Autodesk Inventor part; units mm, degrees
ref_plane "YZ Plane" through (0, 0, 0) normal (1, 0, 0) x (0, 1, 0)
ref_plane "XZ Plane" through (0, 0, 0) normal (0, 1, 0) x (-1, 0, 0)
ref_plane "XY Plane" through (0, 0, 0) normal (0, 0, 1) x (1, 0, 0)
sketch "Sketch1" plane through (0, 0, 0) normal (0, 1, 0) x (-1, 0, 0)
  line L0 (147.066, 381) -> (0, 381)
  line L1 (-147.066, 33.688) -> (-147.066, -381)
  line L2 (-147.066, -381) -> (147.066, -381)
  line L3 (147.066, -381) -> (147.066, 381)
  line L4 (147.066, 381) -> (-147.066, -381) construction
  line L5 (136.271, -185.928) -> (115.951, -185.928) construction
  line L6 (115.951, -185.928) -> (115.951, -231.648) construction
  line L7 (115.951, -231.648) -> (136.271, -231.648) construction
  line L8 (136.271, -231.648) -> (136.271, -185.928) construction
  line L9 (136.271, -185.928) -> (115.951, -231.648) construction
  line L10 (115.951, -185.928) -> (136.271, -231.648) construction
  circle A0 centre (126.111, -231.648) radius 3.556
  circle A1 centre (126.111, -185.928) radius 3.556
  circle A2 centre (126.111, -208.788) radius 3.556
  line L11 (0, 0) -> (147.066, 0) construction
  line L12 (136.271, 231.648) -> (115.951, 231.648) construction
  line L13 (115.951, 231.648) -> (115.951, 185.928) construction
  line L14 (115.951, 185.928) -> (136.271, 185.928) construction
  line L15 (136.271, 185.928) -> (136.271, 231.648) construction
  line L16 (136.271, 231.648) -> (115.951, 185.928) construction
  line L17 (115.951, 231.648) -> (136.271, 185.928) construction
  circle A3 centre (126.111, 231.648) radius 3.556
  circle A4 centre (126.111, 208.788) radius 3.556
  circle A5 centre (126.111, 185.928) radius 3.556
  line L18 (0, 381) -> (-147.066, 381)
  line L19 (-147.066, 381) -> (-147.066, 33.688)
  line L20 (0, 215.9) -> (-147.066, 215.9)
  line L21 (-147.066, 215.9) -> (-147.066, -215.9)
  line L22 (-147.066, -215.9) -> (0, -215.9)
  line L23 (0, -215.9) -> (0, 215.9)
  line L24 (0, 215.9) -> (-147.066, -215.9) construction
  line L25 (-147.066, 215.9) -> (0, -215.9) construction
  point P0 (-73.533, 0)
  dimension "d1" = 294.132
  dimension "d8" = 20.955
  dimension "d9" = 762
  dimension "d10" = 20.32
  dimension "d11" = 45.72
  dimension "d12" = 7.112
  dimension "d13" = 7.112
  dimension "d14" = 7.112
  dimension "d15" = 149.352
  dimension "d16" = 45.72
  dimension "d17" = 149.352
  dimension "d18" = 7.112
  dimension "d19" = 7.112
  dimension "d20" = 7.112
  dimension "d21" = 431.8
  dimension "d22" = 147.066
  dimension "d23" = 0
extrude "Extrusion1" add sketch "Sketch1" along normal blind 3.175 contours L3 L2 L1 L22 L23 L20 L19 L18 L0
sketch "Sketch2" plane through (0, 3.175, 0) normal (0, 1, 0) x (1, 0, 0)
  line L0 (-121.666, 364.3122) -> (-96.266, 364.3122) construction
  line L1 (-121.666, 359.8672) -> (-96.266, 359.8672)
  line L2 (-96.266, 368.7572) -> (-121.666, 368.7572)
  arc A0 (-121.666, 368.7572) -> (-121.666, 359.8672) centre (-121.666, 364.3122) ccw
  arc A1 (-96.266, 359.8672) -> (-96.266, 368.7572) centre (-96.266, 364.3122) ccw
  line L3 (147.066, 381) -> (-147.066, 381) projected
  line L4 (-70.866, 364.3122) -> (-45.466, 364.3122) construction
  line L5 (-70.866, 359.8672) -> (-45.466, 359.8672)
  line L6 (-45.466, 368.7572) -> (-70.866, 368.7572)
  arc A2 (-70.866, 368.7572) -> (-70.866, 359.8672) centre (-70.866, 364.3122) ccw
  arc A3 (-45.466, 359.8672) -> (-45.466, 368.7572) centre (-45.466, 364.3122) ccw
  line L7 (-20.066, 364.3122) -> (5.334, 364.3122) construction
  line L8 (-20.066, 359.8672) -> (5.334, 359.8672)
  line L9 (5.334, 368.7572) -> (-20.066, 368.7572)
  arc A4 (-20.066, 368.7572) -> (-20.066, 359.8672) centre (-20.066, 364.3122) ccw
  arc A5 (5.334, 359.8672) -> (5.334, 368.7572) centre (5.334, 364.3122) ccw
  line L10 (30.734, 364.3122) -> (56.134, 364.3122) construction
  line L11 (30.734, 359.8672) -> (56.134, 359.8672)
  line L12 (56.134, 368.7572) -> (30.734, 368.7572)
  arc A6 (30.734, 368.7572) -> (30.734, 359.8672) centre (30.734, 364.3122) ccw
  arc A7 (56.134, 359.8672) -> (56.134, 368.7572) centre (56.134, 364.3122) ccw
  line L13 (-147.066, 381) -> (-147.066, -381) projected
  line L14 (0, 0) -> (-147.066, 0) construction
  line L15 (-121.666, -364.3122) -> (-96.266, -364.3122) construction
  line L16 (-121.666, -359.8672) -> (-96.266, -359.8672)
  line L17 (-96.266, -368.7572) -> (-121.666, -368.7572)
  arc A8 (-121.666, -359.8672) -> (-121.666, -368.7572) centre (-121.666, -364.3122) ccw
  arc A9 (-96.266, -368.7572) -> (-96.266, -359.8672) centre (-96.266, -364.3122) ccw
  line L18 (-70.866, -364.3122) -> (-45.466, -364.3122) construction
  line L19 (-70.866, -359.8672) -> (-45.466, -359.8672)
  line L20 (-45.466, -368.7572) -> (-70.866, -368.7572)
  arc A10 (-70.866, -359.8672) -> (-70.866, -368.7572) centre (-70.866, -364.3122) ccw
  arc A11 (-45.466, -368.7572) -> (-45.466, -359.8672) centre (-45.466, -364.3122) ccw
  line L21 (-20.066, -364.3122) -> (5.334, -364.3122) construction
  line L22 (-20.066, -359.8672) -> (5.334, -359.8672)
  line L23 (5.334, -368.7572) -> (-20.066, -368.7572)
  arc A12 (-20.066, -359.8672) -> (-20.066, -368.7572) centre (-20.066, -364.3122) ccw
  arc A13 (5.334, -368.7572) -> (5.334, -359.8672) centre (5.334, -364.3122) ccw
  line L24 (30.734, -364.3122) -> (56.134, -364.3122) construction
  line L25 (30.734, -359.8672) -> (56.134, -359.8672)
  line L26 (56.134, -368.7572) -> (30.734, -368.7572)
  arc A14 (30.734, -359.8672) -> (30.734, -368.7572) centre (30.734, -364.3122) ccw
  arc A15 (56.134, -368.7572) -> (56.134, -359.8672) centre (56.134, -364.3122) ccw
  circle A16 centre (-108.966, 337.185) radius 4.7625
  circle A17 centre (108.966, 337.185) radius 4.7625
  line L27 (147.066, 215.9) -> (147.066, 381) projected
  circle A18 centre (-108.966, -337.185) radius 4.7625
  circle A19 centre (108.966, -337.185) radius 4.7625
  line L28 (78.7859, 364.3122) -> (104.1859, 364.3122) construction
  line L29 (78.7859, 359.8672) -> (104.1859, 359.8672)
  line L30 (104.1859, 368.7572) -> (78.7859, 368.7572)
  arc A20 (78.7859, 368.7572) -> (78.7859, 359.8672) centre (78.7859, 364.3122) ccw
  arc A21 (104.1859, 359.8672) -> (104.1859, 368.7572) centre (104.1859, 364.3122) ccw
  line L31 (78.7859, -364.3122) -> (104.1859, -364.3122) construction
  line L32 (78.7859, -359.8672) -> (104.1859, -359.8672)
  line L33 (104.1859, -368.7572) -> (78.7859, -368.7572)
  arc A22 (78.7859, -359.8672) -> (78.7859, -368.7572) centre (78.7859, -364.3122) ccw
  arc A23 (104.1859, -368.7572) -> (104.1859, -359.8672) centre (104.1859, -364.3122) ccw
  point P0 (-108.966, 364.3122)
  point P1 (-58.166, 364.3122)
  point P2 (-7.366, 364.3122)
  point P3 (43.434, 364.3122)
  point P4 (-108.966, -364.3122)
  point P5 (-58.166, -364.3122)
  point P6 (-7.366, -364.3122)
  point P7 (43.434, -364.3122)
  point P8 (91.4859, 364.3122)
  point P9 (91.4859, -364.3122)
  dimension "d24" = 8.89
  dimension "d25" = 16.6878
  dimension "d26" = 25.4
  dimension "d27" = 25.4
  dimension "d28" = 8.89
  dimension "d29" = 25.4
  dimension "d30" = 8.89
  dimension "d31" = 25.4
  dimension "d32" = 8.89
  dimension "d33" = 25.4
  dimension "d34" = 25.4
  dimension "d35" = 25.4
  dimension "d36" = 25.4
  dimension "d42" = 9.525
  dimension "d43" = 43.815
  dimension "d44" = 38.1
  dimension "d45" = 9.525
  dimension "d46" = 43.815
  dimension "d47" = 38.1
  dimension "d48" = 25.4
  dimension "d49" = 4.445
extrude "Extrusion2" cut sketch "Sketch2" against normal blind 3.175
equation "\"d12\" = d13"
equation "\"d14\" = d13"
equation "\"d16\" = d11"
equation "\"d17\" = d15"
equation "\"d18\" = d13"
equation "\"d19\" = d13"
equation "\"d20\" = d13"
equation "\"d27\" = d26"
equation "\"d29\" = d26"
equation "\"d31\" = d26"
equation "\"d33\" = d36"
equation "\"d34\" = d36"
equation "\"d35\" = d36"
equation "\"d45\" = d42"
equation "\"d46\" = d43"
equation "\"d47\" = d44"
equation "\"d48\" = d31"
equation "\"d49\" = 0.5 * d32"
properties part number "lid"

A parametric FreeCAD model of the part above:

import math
import FreeCAD as App
import Part
import Sketcher

V = App.Vector
Q = App.Units.Quantity


def add_polygon(sketch, points):
    """Adds a closed chain of lines whose ends are joined by coincident constraints."""
    first, n = sketch.GeometryCount, len(points)
    for a, b in zip(points, points[1:] + points[:1]):
        sketch.addGeometry(Part.LineSegment(App.Vector(*a, 0), App.Vector(*b, 0)), False)
    for i in range(n):
        sketch.addConstraint(Sketcher.Constraint("Coincident", first + i, 2, first + (i + 1) % n, 1))

doc = App.newDocument("Part")
body = doc.addObject("PartDesign::Body", "Body")

sketch1 = body.newObject("Sketcher::SketchObject", "Sketch")
sketch1.AttachmentSupport = (doc.getObject("XZ_Plane"), [""])
sketch1.MapMode = "FlatFace"
add_polygon(sketch1, [(-147.066, -381), (-147.066, 381), (147.066, 381), (147.066, 215.9), (0, 215.9), (0, -215.9), (147.066, -215.9), (147.066, -381)])
sketch1.addGeometry(Part.Circle(V(-126.111, -231.648, 0), V(0, 0, 1), 3.556), False)
sketch1.addGeometry(Part.Circle(V(-126.111, -208.788, 0), V(0, 0, 1), 3.556), False)
sketch1.addGeometry(Part.Circle(V(-126.111, -185.928, 0), V(0, 0, 1), 3.556), False)
sketch1.addGeometry(Part.Circle(V(-126.111, 185.928, 0), V(0, 0, 1), 3.556), False)
sketch1.addGeometry(Part.Circle(V(-126.111, 208.788, 0), V(0, 0, 1), 3.556), False)
sketch1.addGeometry(Part.Circle(V(-126.111, 231.648, 0), V(0, 0, 1), 3.556), False)
sketch1.addConstraint(Sketcher.Constraint("Vertical", 0))
sketch1.addConstraint(Sketcher.Constraint("Horizontal", 1))
sketch1.addConstraint(Sketcher.Constraint("Vertical", 2))
sketch1.addConstraint(Sketcher.Constraint("Horizontal", 3))
sketch1.addConstraint(Sketcher.Constraint("Vertical", 4))
sketch1.addConstraint(Sketcher.Constraint("Horizontal", 5))
sketch1.addConstraint(Sketcher.Constraint("Vertical", 6))
sketch1.addConstraint(Sketcher.Constraint("Horizontal", 7))
sketch1.addConstraint(Sketcher.Constraint("Equal", 8, 9))
sketch1.addConstraint(Sketcher.Constraint("Equal", 9, 10))
sketch1.addConstraint(Sketcher.Constraint("Equal", 10, 11))
sketch1.addConstraint(Sketcher.Constraint("Equal", 11, 12))
sketch1.addConstraint(Sketcher.Constraint("Equal", 12, 13))
sketch1.addConstraint(Sketcher.Constraint("Symmetric", 3, 2, 4, 2, -1, 1))
sketch1.addConstraint(Sketcher.Constraint("Symmetric", 0, 2, 6, 2, -1, 1))
sketch1.addConstraint(Sketcher.Constraint("Symmetric", 10, 3, 11, 3, -1))
sketch1.addConstraint(Sketcher.Constraint("Symmetric", 9, 3, 12, 3, -1))
sketch1.addConstraint(Sketcher.Constraint("Symmetric", 8, 3, 13, 3, -1))
sketch1.addConstraint(Sketcher.Constraint("Vertical", 8, 3, 9, 3))
sketch1.addConstraint(Sketcher.Constraint("Vertical", 9, 3, 10, 3))
sketch1.addConstraint(Sketcher.Constraint("Vertical", 2, 2, 5, 2))
sketch1.addConstraint(Sketcher.Constraint("Diameter", 8, Q("0.28 in")))
sketch1.addConstraint(Sketcher.Constraint("DistanceY", 0, 1, 0, 2, Q("30 in")))
sketch1.addConstraint(Sketcher.Constraint("DistanceY", 4, 2, 4, 1, Q("17 in")))
sketch1.addConstraint(Sketcher.Constraint("DistanceX", 1, 1, 1, 2, Q("11.58 in")))
sketch1.addConstraint(Sketcher.Constraint("DistanceY", 8, 3, 10, 3, Q("1.8 in")))
sketch1.addConstraint(Sketcher.Constraint("DistanceY", 13, 3, 0, 2, Q("5.88 in")))
sketch1.addConstraint(Sketcher.Constraint("DistanceY", 12, 3, 2, 2, Q("0.28 in")))
sketch1.addConstraint(Sketcher.Constraint("DistanceX", 0, 2, 13, 3, Q("0.825 in")))
pad1 = body.newObject("PartDesign::Pad", "Pad")
pad1.Profile = sketch1
pad1.Length = Q("0.125 in")
pad1.Reversed = True

sketch2 = body.newObject("Sketcher::SketchObject", "Sketch001")
sketch2.AttachmentSupport = (doc.getObject("XZ_Plane"), [""])
sketch2.MapMode = "FlatFace"
sketch2.AttachmentOffset = App.Placement(V(0, 0, -0.125 * 25.4), App.Rotation())
sketch2.addGeometry(Part.ArcOfCircle(Part.Circle(V(-121.666, -364.3122, 0), V(0, 0, 1), 4.445), math.radians(90), math.radians(270)), False)
sketch2.addGeometry(Part.LineSegment(V(-121.666, -359.8672, 0), V(-96.266, -359.8672, 0)), False)
sketch2.addGeometry(Part.ArcOfCircle(Part.Circle(V(-96.266, -364.3122, 0), V(0, 0, 1), 4.445), math.radians(-90), math.radians(90)), False)
sketch2.addGeometry(Part.LineSegment(V(-96.266, -368.7572, 0), V(-121.666, -368.7572, 0)), False)
sketch2.addGeometry(Part.ArcOfCircle(Part.Circle(V(-70.866, -364.3122, 0), V(0, 0, 1), 4.445), math.radians(90), math.radians(270)), False)
sketch2.addGeometry(Part.LineSegment(V(-70.866, -359.8672, 0), V(-45.466, -359.8672, 0)), False)
sketch2.addGeometry(Part.ArcOfCircle(Part.Circle(V(-45.466, -364.3122, 0), V(0, 0, 1), 4.445), math.radians(-90), math.radians(90)), False)
sketch2.addGeometry(Part.LineSegment(V(-45.466, -368.7572, 0), V(-70.866, -368.7572, 0)), False)
sketch2.addGeometry(Part.ArcOfCircle(Part.Circle(V(-20.066, -364.3122, 0), V(0, 0, 1), 4.445), math.radians(90), math.radians(270)), False)
sketch2.addGeometry(Part.LineSegment(V(-20.066, -359.8672, 0), V(5.334, -359.8672, 0)), False)
sketch2.addGeometry(Part.ArcOfCircle(Part.Circle(V(5.334, -364.3122, 0), V(0, 0, 1), 4.445), math.radians(-90), math.radians(90)), False)
sketch2.addGeometry(Part.LineSegment(V(5.334, -368.7572, 0), V(-20.066, -368.7572, 0)), False)
sketch2.addGeometry(Part.ArcOfCircle(Part.Circle(V(30.734, -364.3122, 0), V(0, 0, 1), 4.445), math.radians(90), math.radians(270)), False)
sketch2.addGeometry(Part.LineSegment(V(30.734, -359.8672, 0), V(56.134, -359.8672, 0)), False)
sketch2.addGeometry(Part.ArcOfCircle(Part.Circle(V(56.134, -364.3122, 0), V(0, 0, 1), 4.445), math.radians(-90), math.radians(90)), False)
sketch2.addGeometry(Part.LineSegment(V(56.134, -368.7572, 0), V(30.734, -368.7572, 0)), False)
sketch2.addGeometry(Part.LineSegment(V(-96.266, 359.8672, 0), V(-121.666, 359.8672, 0)), False)
sketch2.addGeometry(Part.ArcOfCircle(Part.Circle(V(-121.666, 364.3122, 0), V(0, 0, 1), 4.445), math.radians(90), math.radians(270)), False)
sketch2.addGeometry(Part.LineSegment(V(-121.666, 368.7572, 0), V(-96.266, 368.7572, 0)), False)
sketch2.addGeometry(Part.ArcOfCircle(Part.Circle(V(-96.266, 364.3122, 0), V(0, 0, 1), 4.445), math.radians(-90), math.radians(90)), False)
sketch2.addGeometry(Part.LineSegment(V(-45.466, 359.8672, 0), V(-70.866, 359.8672, 0)), False)
sketch2.addGeometry(Part.ArcOfCircle(Part.Circle(V(-70.866, 364.3122, 0), V(0, 0, 1), 4.445), math.radians(90), math.radians(270)), False)
sketch2.addGeometry(Part.LineSegment(V(-70.866, 368.7572, 0), V(-45.466, 368.7572, 0)), False)
sketch2.addGeometry(Part.ArcOfCircle(Part.Circle(V(-45.466, 364.3122, 0), V(0, 0, 1), 4.445), math.radians(-90), math.radians(90)), False)
sketch2.addGeometry(Part.LineSegment(V(5.334, 359.8672, 0), V(-20.066, 359.8672, 0)), False)
sketch2.addGeometry(Part.ArcOfCircle(Part.Circle(V(-20.066, 364.3122, 0), V(0, 0, 1), 4.445), math.radians(90), math.radians(270)), False)
sketch2.addGeometry(Part.LineSegment(V(-20.066, 368.7572, 0), V(5.334, 368.7572, 0)), False)
sketch2.addGeometry(Part.ArcOfCircle(Part.Circle(V(5.334, 364.3122, 0), V(0, 0, 1), 4.445), math.radians(-90), math.radians(90)), False)
sketch2.addGeometry(Part.LineSegment(V(56.134, 359.8672, 0), V(30.734, 359.8672, 0)), False)
sketch2.addGeometry(Part.ArcOfCircle(Part.Circle(V(30.734, 364.3122, 0), V(0, 0, 1), 4.445), math.radians(90), math.radians(270)), False)
sketch2.addGeometry(Part.LineSegment(V(30.734, 368.7572, 0), V(56.134, 368.7572, 0)), False)
sketch2.addGeometry(Part.ArcOfCircle(Part.Circle(V(56.134, 364.3122, 0), V(0, 0, 1), 4.445), math.radians(-90), math.radians(90)), False)
sketch2.addGeometry(Part.Circle(V(-108.966, -337.185, 0), V(0, 0, 1), 4.7625), False)
sketch2.addGeometry(Part.Circle(V(108.966, -337.185, 0), V(0, 0, 1), 4.7625), False)
sketch2.addGeometry(Part.Circle(V(-108.966, 337.185, 0), V(0, 0, 1), 4.7625), False)
sketch2.addGeometry(Part.Circle(V(108.966, 337.185, 0), V(0, 0, 1), 4.7625), False)
sketch2.addGeometry(Part.ArcOfCircle(Part.Circle(V(78.7859, -364.3122, 0), V(0, 0, 1), 4.445), math.radians(90), math.radians(270)), False)
sketch2.addGeometry(Part.LineSegment(V(78.7859, -359.8672, 0), V(104.1859, -359.8672, 0)), False)
sketch2.addGeometry(Part.ArcOfCircle(Part.Circle(V(104.1859, -364.3122, 0), V(0, 0, 1), 4.445), math.radians(-90), math.radians(90)), False)
sketch2.addGeometry(Part.LineSegment(V(104.1859, -368.7572, 0), V(78.7859, -368.7572, 0)), False)
sketch2.addGeometry(Part.LineSegment(V(104.1859, 359.8672, 0), V(78.7859, 359.8672, 0)), False)
sketch2.addGeometry(Part.ArcOfCircle(Part.Circle(V(78.7859, 364.3122, 0), V(0, 0, 1), 4.445), math.radians(90), math.radians(270)), False)
sketch2.addGeometry(Part.LineSegment(V(78.7859, 368.7572, 0), V(104.1859, 368.7572, 0)), False)
sketch2.addGeometry(Part.ArcOfCircle(Part.Circle(V(104.1859, 364.3122, 0), V(0, 0, 1), 4.445), math.radians(-90), math.radians(90)), False)
sketch2.addConstraint(Sketcher.Constraint("Tangent", 0, 1, 1, 1))
sketch2.addConstraint(Sketcher.Constraint("Tangent", 1, 2, 2, 2))
sketch2.addConstraint(Sketcher.Constraint("Tangent", 2, 1, 3, 1))
sketch2.addConstraint(Sketcher.Constraint("Tangent", 3, 2, 0, 2))
sketch2.addConstraint(Sketcher.Constraint("Tangent", 4, 1, 5, 1))
sketch2.addConstraint(Sketcher.Constraint("Tangent", 5, 2, 6, 2))
sketch2.addConstraint(Sketcher.Constraint("Tangent", 6, 1, 7, 1))
sketch2.addConstraint(Sketcher.Constraint("Tangent", 7, 2, 4, 2))
sketch2.addConstraint(Sketcher.Constraint("Tangent", 8, 1, 9, 1))
sketch2.addConstraint(Sketcher.Constraint("Tangent", 9, 2, 10, 2))
sketch2.addConstraint(Sketcher.Constraint("Tangent", 10, 1, 11, 1))
sketch2.addConstraint(Sketcher.Constraint("Tangent", 11, 2, 8, 2))
sketch2.addConstraint(Sketcher.Constraint("Tangent", 12, 1, 13, 1))
sketch2.addConstraint(Sketcher.Constraint("Tangent", 13, 2, 14, 2))
sketch2.addConstraint(Sketcher.Constraint("Tangent", 14, 1, 15, 1))
sketch2.addConstraint(Sketcher.Constraint("Tangent", 15, 2, 12, 2))
sketch2.addConstraint(Sketcher.Constraint("Tangent", 16, 2, 17, 2))
sketch2.addConstraint(Sketcher.Constraint("Tangent", 17, 1, 18, 1))
sketch2.addConstraint(Sketcher.Constraint("Tangent", 18, 2, 19, 2))
sketch2.addConstraint(Sketcher.Constraint("Tangent", 19, 1, 16, 1))
sketch2.addConstraint(Sketcher.Constraint("Tangent", 20, 2, 21, 2))
sketch2.addConstraint(Sketcher.Constraint("Tangent", 21, 1, 22, 1))
sketch2.addConstraint(Sketcher.Constraint("Tangent", 22, 2, 23, 2))
sketch2.addConstraint(Sketcher.Constraint("Tangent", 23, 1, 20, 1))
sketch2.addConstraint(Sketcher.Constraint("Tangent", 24, 2, 25, 2))
sketch2.addConstraint(Sketcher.Constraint("Tangent", 25, 1, 26, 1))
sketch2.addConstraint(Sketcher.Constraint("Tangent", 26, 2, 27, 2))
sketch2.addConstraint(Sketcher.Constraint("Tangent", 27, 1, 24, 1))
sketch2.addConstraint(Sketcher.Constraint("Tangent", 28, 2, 29, 2))
sketch2.addConstraint(Sketcher.Constraint("Tangent", 29, 1, 30, 1))
sketch2.addConstraint(Sketcher.Constraint("Tangent", 30, 2, 31, 2))
sketch2.addConstraint(Sketcher.Constraint("Tangent", 31, 1, 28, 1))
sketch2.addConstraint(Sketcher.Constraint("Tangent", 36, 1, 37, 1))
sketch2.addConstraint(Sketcher.Constraint("Tangent", 37, 2, 38, 2))
sketch2.addConstraint(Sketcher.Constraint("Tangent", 38, 1, 39, 1))
sketch2.addConstraint(Sketcher.Constraint("Tangent", 39, 2, 36, 2))
sketch2.addConstraint(Sketcher.Constraint("Tangent", 40, 2, 41, 2))
sketch2.addConstraint(Sketcher.Constraint("Tangent", 41, 1, 42, 1))
sketch2.addConstraint(Sketcher.Constraint("Tangent", 42, 2, 43, 2))
sketch2.addConstraint(Sketcher.Constraint("Tangent", 43, 1, 40, 1))
sketch2.addConstraint(Sketcher.Constraint("Horizontal", 1))
sketch2.addConstraint(Sketcher.Constraint("Horizontal", 3))
sketch2.addConstraint(Sketcher.Constraint("Horizontal", 5))
sketch2.addConstraint(Sketcher.Constraint("Horizontal", 7))
sketch2.addConstraint(Sketcher.Constraint("Horizontal", 9))
sketch2.addConstraint(Sketcher.Constraint("Horizontal", 11))
sketch2.addConstraint(Sketcher.Constraint("Horizontal", 13))
sketch2.addConstraint(Sketcher.Constraint("Horizontal", 15))
sketch2.addConstraint(Sketcher.Constraint("Horizontal", 16))
sketch2.addConstraint(Sketcher.Constraint("Horizontal", 18))
sketch2.addConstraint(Sketcher.Constraint("Horizontal", 20))
sketch2.addConstraint(Sketcher.Constraint("Horizontal", 22))
sketch2.addConstraint(Sketcher.Constraint("Horizontal", 24))
sketch2.addConstraint(Sketcher.Constraint("Horizontal", 26))
sketch2.addConstraint(Sketcher.Constraint("Horizontal", 28))
sketch2.addConstraint(Sketcher.Constraint("Horizontal", 30))
sketch2.addConstraint(Sketcher.Constraint("Horizontal", 37))
sketch2.addConstraint(Sketcher.Constraint("Horizontal", 39))
sketch2.addConstraint(Sketcher.Constraint("Horizontal", 40))
sketch2.addConstraint(Sketcher.Constraint("Horizontal", 42))
sketch2.addConstraint(Sketcher.Constraint("Equal", 2, 4))
sketch2.addConstraint(Sketcher.Constraint("Equal", 6, 8))
sketch2.addConstraint(Sketcher.Constraint("Equal", 10, 12))
sketch2.addConstraint(Sketcher.Constraint("Equal", 14, 17))
sketch2.addConstraint(Sketcher.Constraint("Equal", 19, 21))
sketch2.addConstraint(Sketcher.Constraint("Equal", 23, 25))
sketch2.addConstraint(Sketcher.Constraint("Equal", 27, 29))
sketch2.addConstraint(Sketcher.Constraint("Equal", 32, 33))
sketch2.addConstraint(Sketcher.Constraint("Equal", 33, 34))
sketch2.addConstraint(Sketcher.Constraint("Equal", 34, 35))
sketch2.addConstraint(Sketcher.Constraint("Equal", 31, 36))
sketch2.addConstraint(Sketcher.Constraint("Equal", 38, 41))
sketch2.addConstraint(Sketcher.Constraint("Symmetric", 33, 3, 34, 3, -1, 1))
sketch2.addConstraint(Sketcher.Constraint("Symmetric", 32, 3, 35, 3, -1, 1))
sketch2.addConstraint(Sketcher.Constraint("Symmetric", 32, 3, 33, 3, -2))
sketch2.addConstraint(Sketcher.Constraint("Symmetric", 0, 3, 17, 3, -1))
sketch2.addConstraint(Sketcher.Constraint("Symmetric", 4, 3, 21, 3, -1))
sketch2.addConstraint(Sketcher.Constraint("Symmetric", 8, 3, 25, 3, -1))
sketch2.addConstraint(Sketcher.Constraint("Symmetric", 12, 3, 29, 3, -1))
sketch2.addConstraint(Sketcher.Constraint("Symmetric", 36, 3, 41, 3, -1))
sketch2.addConstraint(Sketcher.Constraint("Horizontal", 2, 3, 4, 3))
sketch2.addConstraint(Sketcher.Constraint("Horizontal", 6, 3, 8, 3))
sketch2.addConstraint(Sketcher.Constraint("Horizontal", 10, 3, 12, 3))
sketch2.addConstraint(Sketcher.Constraint("Horizontal", 14, 3, 36, 3))
sketch2.addConstraint(Sketcher.Constraint("Vertical", 2, 3, 19, 3))
sketch2.addConstraint(Sketcher.Constraint("Vertical", 6, 3, 23, 3))
sketch2.addConstraint(Sketcher.Constraint("Vertical", 10, 3, 27, 3))
sketch2.addConstraint(Sketcher.Constraint("Vertical", 14, 3, 31, 3))
sketch2.addConstraint(Sketcher.Constraint("Vertical", 38, 3, 43, 3))
sketch2.addConstraint(Sketcher.Constraint("Equal", 3, 5))
sketch2.addConstraint(Sketcher.Constraint("Equal", 7, 9))
sketch2.addConstraint(Sketcher.Constraint("Equal", 11, 13))
sketch2.addConstraint(Sketcher.Constraint("Equal", 30, 37))
sketch2.addConstraint(Sketcher.Constraint("DistanceX", 1, 1, 1, 2, Q("1 in")))
sketch2.addConstraint(Sketcher.Constraint("Diameter", 32, Q("0.375 in")))
sketch2.addConstraint(Sketcher.Constraint("Radius", 0, Q("0.175 in")))
sketch2.addConstraint(Sketcher.Constraint("DistanceX", 0, 3, -1, 1, Q("4.79 in")))
sketch2.addConstraint(Sketcher.Constraint("DistanceX", 4, 3, -1, 1, Q("2.79 in")))
sketch2.addConstraint(Sketcher.Constraint("DistanceX", 8, 3, -1, 1, Q("0.79 in")))
sketch2.addConstraint(Sketcher.Constraint("DistanceX", -1, 1, 12, 3, Q("1.21 in")))
sketch2.addConstraint(Sketcher.Constraint("DistanceX", 32, 3, -1, 1, Q("4.29 in")))
sketch2.addConstraint(Sketcher.Constraint("DistanceY", 0, 3, -1, 1, Q("14.343 in")))
sketch2.addConstraint(Sketcher.Constraint("DistanceY", 32, 3, -1, 1, Q("13.275 in")))
sketch2.addConstraint(Sketcher.Constraint("DistanceX", -1, 1, 36, 3, Q("3.1018 in")))
pocket1 = body.newObject("PartDesign::Pocket", "Pocket")
pocket1.Profile = sketch2
pocket1.Length = Q("0.125 in")
pocket1.Reversed = True

doc.recompute()
